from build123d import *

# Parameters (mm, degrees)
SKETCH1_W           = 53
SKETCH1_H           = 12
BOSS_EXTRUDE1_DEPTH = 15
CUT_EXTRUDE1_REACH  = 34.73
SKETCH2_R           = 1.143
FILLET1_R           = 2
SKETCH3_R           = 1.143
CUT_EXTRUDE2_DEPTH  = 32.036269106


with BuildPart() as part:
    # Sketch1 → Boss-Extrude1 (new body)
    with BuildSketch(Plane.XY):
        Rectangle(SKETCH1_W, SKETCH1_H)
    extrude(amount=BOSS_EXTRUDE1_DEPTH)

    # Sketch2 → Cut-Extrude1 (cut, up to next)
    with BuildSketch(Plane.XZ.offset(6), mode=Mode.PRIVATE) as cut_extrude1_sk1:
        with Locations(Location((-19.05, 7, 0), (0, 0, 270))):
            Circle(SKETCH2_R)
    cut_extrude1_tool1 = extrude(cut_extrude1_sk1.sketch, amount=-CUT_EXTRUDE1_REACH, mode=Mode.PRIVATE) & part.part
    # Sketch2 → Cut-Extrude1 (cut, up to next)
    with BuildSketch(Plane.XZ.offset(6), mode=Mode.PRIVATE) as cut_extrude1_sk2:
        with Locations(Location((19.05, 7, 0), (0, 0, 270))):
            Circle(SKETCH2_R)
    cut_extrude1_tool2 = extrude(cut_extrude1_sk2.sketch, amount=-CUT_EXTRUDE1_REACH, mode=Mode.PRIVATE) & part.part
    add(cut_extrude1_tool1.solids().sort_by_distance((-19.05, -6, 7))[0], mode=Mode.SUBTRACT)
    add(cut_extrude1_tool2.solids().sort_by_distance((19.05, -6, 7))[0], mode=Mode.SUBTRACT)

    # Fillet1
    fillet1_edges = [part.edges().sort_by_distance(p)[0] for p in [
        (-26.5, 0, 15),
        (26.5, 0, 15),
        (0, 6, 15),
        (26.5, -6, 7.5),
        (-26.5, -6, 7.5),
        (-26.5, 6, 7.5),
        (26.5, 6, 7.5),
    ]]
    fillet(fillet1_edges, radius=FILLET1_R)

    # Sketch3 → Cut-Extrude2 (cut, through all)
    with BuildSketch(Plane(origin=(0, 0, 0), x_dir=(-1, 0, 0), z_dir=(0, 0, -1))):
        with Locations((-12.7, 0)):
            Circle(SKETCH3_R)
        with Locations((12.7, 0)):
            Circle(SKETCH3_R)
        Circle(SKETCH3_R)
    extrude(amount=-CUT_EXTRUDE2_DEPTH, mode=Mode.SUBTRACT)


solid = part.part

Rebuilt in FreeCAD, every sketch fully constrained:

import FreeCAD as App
import Part
import Sketcher

V = App.Vector
Q = App.Units.Quantity


def edges_at(feature, points):
    """Names of the edges that pass closest to the given points."""
    edges = feature.Shape.Edges
    near = lambda p: min(range(len(edges)), key=lambda i: edges[i].distToShape(Part.Vertex(*p))[0])
    return sorted({f"Edge{near(p) + 1}" for p in points})


def add_polygon(sketch, points):
    """Adds a closed chain of lines whose ends are joined by coincident constraints."""
    first, n = sketch.GeometryCount, len(points)
    for a, b in zip(points, points[1:] + points[:1]):
        sketch.addGeometry(Part.LineSegment(App.Vector(*a, 0), App.Vector(*b, 0)), False)
    for i in range(n):
        sketch.addConstraint(Sketcher.Constraint("Coincident", first + i, 2, first + (i + 1) % n, 1))

doc = App.newDocument("Part")
body = doc.addObject("PartDesign::Body", "Body")

sketch1 = doc.addObject("Sketcher::SketchObject", "Sketch")
body.addObject(sketch1)
sketch1.AttachmentSupport = (doc.XY_Plane, [""])
sketch1.MapMode = "FlatFace"
add_polygon(sketch1, [(-26, 6), (-26, -6), (26, -6), (26, 6)])
sketch1.addConstraint(Sketcher.Constraint("Vertical", 0))
sketch1.addConstraint(Sketcher.Constraint("Horizontal", 1))
sketch1.addConstraint(Sketcher.Constraint("Vertical", 2))
sketch1.addConstraint(Sketcher.Constraint("Horizontal", 3))
sketch1.addConstraint(Sketcher.Constraint("Symmetric", 0, 2, 2, 2, -1, 1))
sketch1.addConstraint(Sketcher.Constraint("DistanceX", 1, 1, 1, 2, Q("53 mm")))
sketch1.addConstraint(Sketcher.Constraint("DistanceY", 0, 2, 0, 1, Q("12 mm")))
pad1 = doc.addObject("PartDesign::Pad", "Pad")
body.addObject(pad1)
pad1.Profile = sketch1
pad1.Length = 15

sketch2 = doc.addObject("Sketcher::SketchObject", "Sketch001")
body.addObject(sketch2)
sketch2.AttachmentSupport = (doc.XZ_Plane, [""])
sketch2.MapMode = "FlatFace"
sketch2.AttachmentOffset = App.Placement(V(0, 0, 6), App.Rotation())
sketch2.addGeometry(Part.Circle(V(-19.1, 7, 0), V(0, 0, 1), 1.1), False)
sketch2.addConstraint(Sketcher.Constraint("Diameter", 0, Q("2.286 mm")))
sketch2.addConstraint(Sketcher.Constraint("DistanceY", -1, 1, 0, 3, Q("7 mm")))
sketch2.addConstraint(Sketcher.Constraint("DistanceX", 0, 3, -1, 1, Q("19.05 mm")))
pocket1 = doc.addObject("PartDesign::Pocket", "Pocket")
body.addObject(pocket1)
pocket1.Profile = sketch2
pocket1.Type = "UpToFirst"

sketch3 = doc.addObject("Sketcher::SketchObject", "Sketch002")
body.addObject(sketch3)
sketch3.AttachmentSupport = (doc.XZ_Plane, [""])
sketch3.MapMode = "FlatFace"
sketch3.AttachmentOffset = App.Placement(V(0, 0, 6), App.Rotation())
sketch3.addGeometry(Part.Circle(V(19.1, 7, 0), V(0, 0, 1), 1.1), False)
sketch3.addConstraint(Sketcher.Constraint("Diameter", 0, Q("2.286 mm")))
sketch3.addConstraint(Sketcher.Constraint("DistanceY", -1, 1, 0, 3, Q("7 mm")))
sketch3.addConstraint(Sketcher.Constraint("DistanceX", -1, 1, 0, 3, Q("19.05 mm")))
pocket2 = doc.addObject("PartDesign::Pocket", "Pocket001")
body.addObject(pocket2)
pocket2.Profile = sketch3
pocket2.Type = "UpToFirst"
doc.recompute()

fillet = doc.addObject("PartDesign::Fillet", "Fillet")
body.addObject(fillet)
fillet.Base = (pocket2, edges_at(pocket2, [
    (-26.5, 0, 15),
    (26.5, 0, 15),
    (0, 6, 15),
    (26.5, -6, 7.5),
    (-26.5, -6, 7.5),
    (-26.5, 6, 7.5),
    (26.5, 6, 7.5),
]))
fillet.Radius = 2

sketch4 = doc.addObject("Sketcher::SketchObject", "Sketch003")
body.addObject(sketch4)
sketch4.AttachmentSupport = (doc.XY_Plane, [""])
sketch4.MapMode = "FlatFace"
sketch4.addGeometry(Part.Circle(V(12.7, 0, 0), V(0, 0, 1), 1.1), False)
sketch4.addGeometry(Part.Circle(V(-12.7, 0, 0), V(0, 0, 1), 1.1), False)
sketch4.addGeometry(Part.Circle(V(0, 0, 0), V(0, 0, 1), 1.1), False)
sketch4.addConstraint(Sketcher.Constraint("Coincident", 2, 3, -1, 1))
sketch4.addConstraint(Sketcher.Constraint("Equal", 0, 1))
sketch4.addConstraint(Sketcher.Constraint("Equal", 1, 2))
sketch4.addConstraint(Sketcher.Constraint("Symmetric", 0, 3, 1, 3, -1, 1))
sketch4.addConstraint(Sketcher.Constraint("PointOnObject", 0, 3, -1))
sketch4.addConstraint(Sketcher.Constraint("Diameter", 0, Q("2.286 mm")))
sketch4.addConstraint(Sketcher.Constraint("DistanceX", -1, 1, 0, 3, Q("12.7 mm")))
pocket3 = doc.addObject("PartDesign::Pocket", "Pocket002")
body.addObject(pocket3)
pocket3.Profile = sketch4
pocket3.Type = "ThroughAll"
pocket3.Reversed = True

doc.recompute()
